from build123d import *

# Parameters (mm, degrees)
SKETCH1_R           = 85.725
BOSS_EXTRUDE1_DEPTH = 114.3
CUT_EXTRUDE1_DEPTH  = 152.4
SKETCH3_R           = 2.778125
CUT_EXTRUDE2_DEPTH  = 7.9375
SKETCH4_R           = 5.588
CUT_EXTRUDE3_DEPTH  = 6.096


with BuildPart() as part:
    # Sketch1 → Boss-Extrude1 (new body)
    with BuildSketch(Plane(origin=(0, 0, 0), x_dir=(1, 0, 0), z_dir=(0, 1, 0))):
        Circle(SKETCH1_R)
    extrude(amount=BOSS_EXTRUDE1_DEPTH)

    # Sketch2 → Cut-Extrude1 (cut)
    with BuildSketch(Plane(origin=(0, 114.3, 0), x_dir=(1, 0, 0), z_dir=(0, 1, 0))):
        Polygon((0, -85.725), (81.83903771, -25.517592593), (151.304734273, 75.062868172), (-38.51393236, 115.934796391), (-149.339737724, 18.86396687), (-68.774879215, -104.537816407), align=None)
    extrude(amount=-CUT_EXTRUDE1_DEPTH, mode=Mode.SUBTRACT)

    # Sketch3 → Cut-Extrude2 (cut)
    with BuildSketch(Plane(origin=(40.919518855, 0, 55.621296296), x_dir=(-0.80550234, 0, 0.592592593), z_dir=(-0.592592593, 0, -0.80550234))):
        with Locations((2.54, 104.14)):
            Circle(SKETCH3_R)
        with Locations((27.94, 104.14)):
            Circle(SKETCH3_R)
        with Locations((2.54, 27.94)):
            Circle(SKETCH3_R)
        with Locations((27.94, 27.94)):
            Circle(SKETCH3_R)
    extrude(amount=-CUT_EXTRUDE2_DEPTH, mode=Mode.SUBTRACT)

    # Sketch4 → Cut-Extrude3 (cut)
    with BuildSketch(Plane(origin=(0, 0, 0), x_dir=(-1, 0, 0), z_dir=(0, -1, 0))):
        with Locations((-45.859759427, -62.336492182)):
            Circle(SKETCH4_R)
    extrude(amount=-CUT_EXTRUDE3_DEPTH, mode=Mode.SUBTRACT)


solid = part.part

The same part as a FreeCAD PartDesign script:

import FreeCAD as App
import Part
import Sketcher

V = App.Vector
Q = App.Units.Quantity


def add_polygon(sketch, points):
    """Adds a closed chain of lines whose ends are joined by coincident constraints."""
    first, n = sketch.GeometryCount, len(points)
    for a, b in zip(points, points[1:] + points[:1]):
        sketch.addGeometry(Part.LineSegment(App.Vector(*a, 0), App.Vector(*b, 0)), False)
    for i in range(n):
        sketch.addConstraint(Sketcher.Constraint("Coincident", first + i, 2, first + (i + 1) % n, 1))

doc = App.newDocument("Part")
params = doc.addObject("Spreadsheet::Sheet", "Params")
for row, (alias, value) in enumerate([
    ("sketch1_diameter", "6.75 in"),
    ("pad1_length", "4.5 in"),
    ("sketch2_length", "4 in"),
    ("pocket1_length", "6 in"),
    ("sketch3_diameter", "0.21875 in"),
    ("pocket2_length", "0.3125 in"),
    ("sketch4_diameter", "0.44 in"),
    ("pocket3_length", "0.24 in"),
], start=1):
    params.set(f"A{row}", alias)
    params.set(f"B{row}", "=" + value)
    params.setAlias(f"B{row}", alias)

body = doc.addObject("PartDesign::Body", "Body")

# Sketch on XZ plane
sketch1 = doc.addObject("Sketcher::SketchObject", "Sketch")
body.addObject(sketch1)
sketch1.AttachmentSupport = (doc.XZ_Plane, [""])
sketch1.MapMode = "FlatFace"
sketch1.addGeometry(Part.Circle(V(0, 0, 0), V(0, 0, 1), 85.725), False)
sketch1.addConstraint(Sketcher.Constraint("Coincident", 0, 3, -1, 1))
sketch1.addConstraint(Sketcher.Constraint("Diameter", 0, Q("6.75 in")))
sketch1.setExpression("Constraints[1]", "Params.sketch1_diameter")
pad1 = doc.addObject("PartDesign::Pad", "Pad")
body.addObject(pad1)
pad1.Profile = sketch1
pad1.setExpression("Length", "Params.pad1_length")
pad1.Reversed = True

# Sketch on XZ plane
sketch2 = doc.addObject("Sketcher::SketchObject", "Sketch001")
body.addObject(sketch2)
sketch2.AttachmentSupport = (doc.XZ_Plane, [""])
sketch2.MapMode = "FlatFace"
sketch2.AttachmentOffset = App.Placement(V(0, 0, -4.5 * 25.4), App.Rotation())
add_polygon(sketch2, [(0, 85.725), (81.839038, 25.517593), (151.304734, -75.062868), (-38.513932, -115.934796), (-149.339738, -18.863967), (-68.774879, 104.537816)])  # lines 0-5
sketch2.addConstraint(Sketcher.Constraint("PointOnObject", 5, 2, -2))
sketch2.addConstraint(Sketcher.Constraint("Distance", 0, Q("4 in")))
sketch2.addConstraint(Sketcher.Constraint("DistanceY", -1, 1, 5, 2, Q("3.375 in")))
sketch2.addConstraint(Sketcher.Constraint("DistanceY", 1, 2, 3, 2, Q("56.198901 mm")))
sketch2.addConstraint(Sketcher.Constraint("DistanceY", 1, 2, -1, 1, Q("75.062868 mm")))
sketch2.addConstraint(Sketcher.Constraint("DistanceX", 4, 2, -1, 1, Q("68.774879 mm")))
sketch2.addConstraint(Sketcher.Constraint("DistanceY", 1, 2, 0, 2, Q("100.580461 mm")))
sketch2.addConstraint(Sketcher.Constraint("DistanceX", 2, 2, 0, 2, Q("120.35297 mm")))
sketch2.addConstraint(Sketcher.Constraint("DistanceY", 2, 2, 0, 2, Q("141.452389 mm")))
sketch2.addConstraint(Sketcher.Constraint("DistanceX", 3, 2, 1, 2, Q("300.644472 mm")))
sketch2.addConstraint(Sketcher.Constraint("DistanceX", 3, 2, 4, 2, Q("80.564859 mm")))
sketch2.addConstraint(Sketcher.Constraint("Distance", 4, Q("147.372645 mm")))
sketch2.setExpression("Constraints[7]", "Params.sketch2_length")
pocket1 = doc.addObject("PartDesign::Pocket", "Pocket")
body.addObject(pocket1)
pocket1.Profile = sketch2
pocket1.setExpression("Length", "Params.pocket1_length")
pocket1.Reversed = True

# Sketch on an angled plane
sketch3 = doc.addObject("Sketcher::SketchObject", "Sketch002")
body.addObject(sketch3)
sketch3.Placement = App.Placement(V(40.919519, 0, 55.621296), App.Rotation(V(-0.80550234, 0, 0.592592593), V(0, 1.000000001, 0), V(-0.592592593, 0, -0.80550234), "ZXY"))
sketch3.addGeometry(Part.Circle(V(2.54, 104.14, 0), V(0, 0, 1), 2.778125), False)
sketch3.addGeometry(Part.Circle(V(27.94, 104.14, 0), V(0, 0, 1), 2.778125), False)
sketch3.addGeometry(Part.Circle(V(2.54, 27.94, 0), V(0, 0, 1), 2.778125), False)
sketch3.addGeometry(Part.Circle(V(27.94, 27.94, 0), V(0, 0, 1), 2.778125), False)
sketch3.addConstraint(Sketcher.Constraint("Equal", 0, 1))
sketch3.addConstraint(Sketcher.Constraint("Equal", 1, 2))
sketch3.addConstraint(Sketcher.Constraint("Equal", 2, 3))
sketch3.addConstraint(Sketcher.Constraint("Horizontal", 0, 3, 1, 3))
sketch3.addConstraint(Sketcher.Constraint("Horizontal", 2, 3, 3, 3))
sketch3.addConstraint(Sketcher.Constraint("Vertical", 0, 3, 2, 3))
sketch3.addConstraint(Sketcher.Constraint("Vertical", 1, 3, 3, 3))
sketch3.addConstraint(Sketcher.Constraint("Diameter", 0, Q("0.21875 in")))
sketch3.addConstraint(Sketcher.Constraint("DistanceX", 0, 3, 1, 3, Q("1 in")))
sketch3.addConstraint(Sketcher.Constraint("DistanceY", 2, 3, 0, 3, Q("3 in")))
sketch3.addConstraint(Sketcher.Constraint("DistanceX", -1, 1, 0, 3, Q("0.1 in")))
sketch3.addConstraint(Sketcher.Constraint("DistanceY", -1, 1, 0, 3, Q("4.1 in")))
sketch3.setExpression("Constraints[7]", "Params.sketch3_diameter")
pocket2 = doc.addObject("PartDesign::Pocket", "Pocket001")
body.addObject(pocket2)
pocket2.Profile = sketch3
pocket2.setExpression("Length", "Params.pocket2_length")

# Sketch on XZ plane
sketch4 = doc.addObject("Sketcher::SketchObject", "Sketch003")
body.addObject(sketch4)
sketch4.AttachmentSupport = (doc.XZ_Plane, [""])
sketch4.MapMode = "FlatFace"
sketch4.addGeometry(Part.Circle(V(45.859759, 62.336492, 0), V(0, 0, 1), 5.588), False)
sketch4.addConstraint(Sketcher.Constraint("Diameter", 0, Q("0.44 in")))
sketch4.addConstraint(Sketcher.Constraint("DistanceX", -1, 1, 0, 3, Q("45.859759 mm")))
sketch4.addConstraint(Sketcher.Constraint("DistanceY", -1, 1, 0, 3, Q("62.336492 mm")))
sketch4.setExpression("Constraints[0]", "Params.sketch4_diameter")
pocket3 = doc.addObject("PartDesign::Pocket", "Pocket002")
body.addObject(pocket3)
pocket3.Profile = sketch4
pocket3.setExpression("Length", "Params.pocket3_length")

doc.recompute()
